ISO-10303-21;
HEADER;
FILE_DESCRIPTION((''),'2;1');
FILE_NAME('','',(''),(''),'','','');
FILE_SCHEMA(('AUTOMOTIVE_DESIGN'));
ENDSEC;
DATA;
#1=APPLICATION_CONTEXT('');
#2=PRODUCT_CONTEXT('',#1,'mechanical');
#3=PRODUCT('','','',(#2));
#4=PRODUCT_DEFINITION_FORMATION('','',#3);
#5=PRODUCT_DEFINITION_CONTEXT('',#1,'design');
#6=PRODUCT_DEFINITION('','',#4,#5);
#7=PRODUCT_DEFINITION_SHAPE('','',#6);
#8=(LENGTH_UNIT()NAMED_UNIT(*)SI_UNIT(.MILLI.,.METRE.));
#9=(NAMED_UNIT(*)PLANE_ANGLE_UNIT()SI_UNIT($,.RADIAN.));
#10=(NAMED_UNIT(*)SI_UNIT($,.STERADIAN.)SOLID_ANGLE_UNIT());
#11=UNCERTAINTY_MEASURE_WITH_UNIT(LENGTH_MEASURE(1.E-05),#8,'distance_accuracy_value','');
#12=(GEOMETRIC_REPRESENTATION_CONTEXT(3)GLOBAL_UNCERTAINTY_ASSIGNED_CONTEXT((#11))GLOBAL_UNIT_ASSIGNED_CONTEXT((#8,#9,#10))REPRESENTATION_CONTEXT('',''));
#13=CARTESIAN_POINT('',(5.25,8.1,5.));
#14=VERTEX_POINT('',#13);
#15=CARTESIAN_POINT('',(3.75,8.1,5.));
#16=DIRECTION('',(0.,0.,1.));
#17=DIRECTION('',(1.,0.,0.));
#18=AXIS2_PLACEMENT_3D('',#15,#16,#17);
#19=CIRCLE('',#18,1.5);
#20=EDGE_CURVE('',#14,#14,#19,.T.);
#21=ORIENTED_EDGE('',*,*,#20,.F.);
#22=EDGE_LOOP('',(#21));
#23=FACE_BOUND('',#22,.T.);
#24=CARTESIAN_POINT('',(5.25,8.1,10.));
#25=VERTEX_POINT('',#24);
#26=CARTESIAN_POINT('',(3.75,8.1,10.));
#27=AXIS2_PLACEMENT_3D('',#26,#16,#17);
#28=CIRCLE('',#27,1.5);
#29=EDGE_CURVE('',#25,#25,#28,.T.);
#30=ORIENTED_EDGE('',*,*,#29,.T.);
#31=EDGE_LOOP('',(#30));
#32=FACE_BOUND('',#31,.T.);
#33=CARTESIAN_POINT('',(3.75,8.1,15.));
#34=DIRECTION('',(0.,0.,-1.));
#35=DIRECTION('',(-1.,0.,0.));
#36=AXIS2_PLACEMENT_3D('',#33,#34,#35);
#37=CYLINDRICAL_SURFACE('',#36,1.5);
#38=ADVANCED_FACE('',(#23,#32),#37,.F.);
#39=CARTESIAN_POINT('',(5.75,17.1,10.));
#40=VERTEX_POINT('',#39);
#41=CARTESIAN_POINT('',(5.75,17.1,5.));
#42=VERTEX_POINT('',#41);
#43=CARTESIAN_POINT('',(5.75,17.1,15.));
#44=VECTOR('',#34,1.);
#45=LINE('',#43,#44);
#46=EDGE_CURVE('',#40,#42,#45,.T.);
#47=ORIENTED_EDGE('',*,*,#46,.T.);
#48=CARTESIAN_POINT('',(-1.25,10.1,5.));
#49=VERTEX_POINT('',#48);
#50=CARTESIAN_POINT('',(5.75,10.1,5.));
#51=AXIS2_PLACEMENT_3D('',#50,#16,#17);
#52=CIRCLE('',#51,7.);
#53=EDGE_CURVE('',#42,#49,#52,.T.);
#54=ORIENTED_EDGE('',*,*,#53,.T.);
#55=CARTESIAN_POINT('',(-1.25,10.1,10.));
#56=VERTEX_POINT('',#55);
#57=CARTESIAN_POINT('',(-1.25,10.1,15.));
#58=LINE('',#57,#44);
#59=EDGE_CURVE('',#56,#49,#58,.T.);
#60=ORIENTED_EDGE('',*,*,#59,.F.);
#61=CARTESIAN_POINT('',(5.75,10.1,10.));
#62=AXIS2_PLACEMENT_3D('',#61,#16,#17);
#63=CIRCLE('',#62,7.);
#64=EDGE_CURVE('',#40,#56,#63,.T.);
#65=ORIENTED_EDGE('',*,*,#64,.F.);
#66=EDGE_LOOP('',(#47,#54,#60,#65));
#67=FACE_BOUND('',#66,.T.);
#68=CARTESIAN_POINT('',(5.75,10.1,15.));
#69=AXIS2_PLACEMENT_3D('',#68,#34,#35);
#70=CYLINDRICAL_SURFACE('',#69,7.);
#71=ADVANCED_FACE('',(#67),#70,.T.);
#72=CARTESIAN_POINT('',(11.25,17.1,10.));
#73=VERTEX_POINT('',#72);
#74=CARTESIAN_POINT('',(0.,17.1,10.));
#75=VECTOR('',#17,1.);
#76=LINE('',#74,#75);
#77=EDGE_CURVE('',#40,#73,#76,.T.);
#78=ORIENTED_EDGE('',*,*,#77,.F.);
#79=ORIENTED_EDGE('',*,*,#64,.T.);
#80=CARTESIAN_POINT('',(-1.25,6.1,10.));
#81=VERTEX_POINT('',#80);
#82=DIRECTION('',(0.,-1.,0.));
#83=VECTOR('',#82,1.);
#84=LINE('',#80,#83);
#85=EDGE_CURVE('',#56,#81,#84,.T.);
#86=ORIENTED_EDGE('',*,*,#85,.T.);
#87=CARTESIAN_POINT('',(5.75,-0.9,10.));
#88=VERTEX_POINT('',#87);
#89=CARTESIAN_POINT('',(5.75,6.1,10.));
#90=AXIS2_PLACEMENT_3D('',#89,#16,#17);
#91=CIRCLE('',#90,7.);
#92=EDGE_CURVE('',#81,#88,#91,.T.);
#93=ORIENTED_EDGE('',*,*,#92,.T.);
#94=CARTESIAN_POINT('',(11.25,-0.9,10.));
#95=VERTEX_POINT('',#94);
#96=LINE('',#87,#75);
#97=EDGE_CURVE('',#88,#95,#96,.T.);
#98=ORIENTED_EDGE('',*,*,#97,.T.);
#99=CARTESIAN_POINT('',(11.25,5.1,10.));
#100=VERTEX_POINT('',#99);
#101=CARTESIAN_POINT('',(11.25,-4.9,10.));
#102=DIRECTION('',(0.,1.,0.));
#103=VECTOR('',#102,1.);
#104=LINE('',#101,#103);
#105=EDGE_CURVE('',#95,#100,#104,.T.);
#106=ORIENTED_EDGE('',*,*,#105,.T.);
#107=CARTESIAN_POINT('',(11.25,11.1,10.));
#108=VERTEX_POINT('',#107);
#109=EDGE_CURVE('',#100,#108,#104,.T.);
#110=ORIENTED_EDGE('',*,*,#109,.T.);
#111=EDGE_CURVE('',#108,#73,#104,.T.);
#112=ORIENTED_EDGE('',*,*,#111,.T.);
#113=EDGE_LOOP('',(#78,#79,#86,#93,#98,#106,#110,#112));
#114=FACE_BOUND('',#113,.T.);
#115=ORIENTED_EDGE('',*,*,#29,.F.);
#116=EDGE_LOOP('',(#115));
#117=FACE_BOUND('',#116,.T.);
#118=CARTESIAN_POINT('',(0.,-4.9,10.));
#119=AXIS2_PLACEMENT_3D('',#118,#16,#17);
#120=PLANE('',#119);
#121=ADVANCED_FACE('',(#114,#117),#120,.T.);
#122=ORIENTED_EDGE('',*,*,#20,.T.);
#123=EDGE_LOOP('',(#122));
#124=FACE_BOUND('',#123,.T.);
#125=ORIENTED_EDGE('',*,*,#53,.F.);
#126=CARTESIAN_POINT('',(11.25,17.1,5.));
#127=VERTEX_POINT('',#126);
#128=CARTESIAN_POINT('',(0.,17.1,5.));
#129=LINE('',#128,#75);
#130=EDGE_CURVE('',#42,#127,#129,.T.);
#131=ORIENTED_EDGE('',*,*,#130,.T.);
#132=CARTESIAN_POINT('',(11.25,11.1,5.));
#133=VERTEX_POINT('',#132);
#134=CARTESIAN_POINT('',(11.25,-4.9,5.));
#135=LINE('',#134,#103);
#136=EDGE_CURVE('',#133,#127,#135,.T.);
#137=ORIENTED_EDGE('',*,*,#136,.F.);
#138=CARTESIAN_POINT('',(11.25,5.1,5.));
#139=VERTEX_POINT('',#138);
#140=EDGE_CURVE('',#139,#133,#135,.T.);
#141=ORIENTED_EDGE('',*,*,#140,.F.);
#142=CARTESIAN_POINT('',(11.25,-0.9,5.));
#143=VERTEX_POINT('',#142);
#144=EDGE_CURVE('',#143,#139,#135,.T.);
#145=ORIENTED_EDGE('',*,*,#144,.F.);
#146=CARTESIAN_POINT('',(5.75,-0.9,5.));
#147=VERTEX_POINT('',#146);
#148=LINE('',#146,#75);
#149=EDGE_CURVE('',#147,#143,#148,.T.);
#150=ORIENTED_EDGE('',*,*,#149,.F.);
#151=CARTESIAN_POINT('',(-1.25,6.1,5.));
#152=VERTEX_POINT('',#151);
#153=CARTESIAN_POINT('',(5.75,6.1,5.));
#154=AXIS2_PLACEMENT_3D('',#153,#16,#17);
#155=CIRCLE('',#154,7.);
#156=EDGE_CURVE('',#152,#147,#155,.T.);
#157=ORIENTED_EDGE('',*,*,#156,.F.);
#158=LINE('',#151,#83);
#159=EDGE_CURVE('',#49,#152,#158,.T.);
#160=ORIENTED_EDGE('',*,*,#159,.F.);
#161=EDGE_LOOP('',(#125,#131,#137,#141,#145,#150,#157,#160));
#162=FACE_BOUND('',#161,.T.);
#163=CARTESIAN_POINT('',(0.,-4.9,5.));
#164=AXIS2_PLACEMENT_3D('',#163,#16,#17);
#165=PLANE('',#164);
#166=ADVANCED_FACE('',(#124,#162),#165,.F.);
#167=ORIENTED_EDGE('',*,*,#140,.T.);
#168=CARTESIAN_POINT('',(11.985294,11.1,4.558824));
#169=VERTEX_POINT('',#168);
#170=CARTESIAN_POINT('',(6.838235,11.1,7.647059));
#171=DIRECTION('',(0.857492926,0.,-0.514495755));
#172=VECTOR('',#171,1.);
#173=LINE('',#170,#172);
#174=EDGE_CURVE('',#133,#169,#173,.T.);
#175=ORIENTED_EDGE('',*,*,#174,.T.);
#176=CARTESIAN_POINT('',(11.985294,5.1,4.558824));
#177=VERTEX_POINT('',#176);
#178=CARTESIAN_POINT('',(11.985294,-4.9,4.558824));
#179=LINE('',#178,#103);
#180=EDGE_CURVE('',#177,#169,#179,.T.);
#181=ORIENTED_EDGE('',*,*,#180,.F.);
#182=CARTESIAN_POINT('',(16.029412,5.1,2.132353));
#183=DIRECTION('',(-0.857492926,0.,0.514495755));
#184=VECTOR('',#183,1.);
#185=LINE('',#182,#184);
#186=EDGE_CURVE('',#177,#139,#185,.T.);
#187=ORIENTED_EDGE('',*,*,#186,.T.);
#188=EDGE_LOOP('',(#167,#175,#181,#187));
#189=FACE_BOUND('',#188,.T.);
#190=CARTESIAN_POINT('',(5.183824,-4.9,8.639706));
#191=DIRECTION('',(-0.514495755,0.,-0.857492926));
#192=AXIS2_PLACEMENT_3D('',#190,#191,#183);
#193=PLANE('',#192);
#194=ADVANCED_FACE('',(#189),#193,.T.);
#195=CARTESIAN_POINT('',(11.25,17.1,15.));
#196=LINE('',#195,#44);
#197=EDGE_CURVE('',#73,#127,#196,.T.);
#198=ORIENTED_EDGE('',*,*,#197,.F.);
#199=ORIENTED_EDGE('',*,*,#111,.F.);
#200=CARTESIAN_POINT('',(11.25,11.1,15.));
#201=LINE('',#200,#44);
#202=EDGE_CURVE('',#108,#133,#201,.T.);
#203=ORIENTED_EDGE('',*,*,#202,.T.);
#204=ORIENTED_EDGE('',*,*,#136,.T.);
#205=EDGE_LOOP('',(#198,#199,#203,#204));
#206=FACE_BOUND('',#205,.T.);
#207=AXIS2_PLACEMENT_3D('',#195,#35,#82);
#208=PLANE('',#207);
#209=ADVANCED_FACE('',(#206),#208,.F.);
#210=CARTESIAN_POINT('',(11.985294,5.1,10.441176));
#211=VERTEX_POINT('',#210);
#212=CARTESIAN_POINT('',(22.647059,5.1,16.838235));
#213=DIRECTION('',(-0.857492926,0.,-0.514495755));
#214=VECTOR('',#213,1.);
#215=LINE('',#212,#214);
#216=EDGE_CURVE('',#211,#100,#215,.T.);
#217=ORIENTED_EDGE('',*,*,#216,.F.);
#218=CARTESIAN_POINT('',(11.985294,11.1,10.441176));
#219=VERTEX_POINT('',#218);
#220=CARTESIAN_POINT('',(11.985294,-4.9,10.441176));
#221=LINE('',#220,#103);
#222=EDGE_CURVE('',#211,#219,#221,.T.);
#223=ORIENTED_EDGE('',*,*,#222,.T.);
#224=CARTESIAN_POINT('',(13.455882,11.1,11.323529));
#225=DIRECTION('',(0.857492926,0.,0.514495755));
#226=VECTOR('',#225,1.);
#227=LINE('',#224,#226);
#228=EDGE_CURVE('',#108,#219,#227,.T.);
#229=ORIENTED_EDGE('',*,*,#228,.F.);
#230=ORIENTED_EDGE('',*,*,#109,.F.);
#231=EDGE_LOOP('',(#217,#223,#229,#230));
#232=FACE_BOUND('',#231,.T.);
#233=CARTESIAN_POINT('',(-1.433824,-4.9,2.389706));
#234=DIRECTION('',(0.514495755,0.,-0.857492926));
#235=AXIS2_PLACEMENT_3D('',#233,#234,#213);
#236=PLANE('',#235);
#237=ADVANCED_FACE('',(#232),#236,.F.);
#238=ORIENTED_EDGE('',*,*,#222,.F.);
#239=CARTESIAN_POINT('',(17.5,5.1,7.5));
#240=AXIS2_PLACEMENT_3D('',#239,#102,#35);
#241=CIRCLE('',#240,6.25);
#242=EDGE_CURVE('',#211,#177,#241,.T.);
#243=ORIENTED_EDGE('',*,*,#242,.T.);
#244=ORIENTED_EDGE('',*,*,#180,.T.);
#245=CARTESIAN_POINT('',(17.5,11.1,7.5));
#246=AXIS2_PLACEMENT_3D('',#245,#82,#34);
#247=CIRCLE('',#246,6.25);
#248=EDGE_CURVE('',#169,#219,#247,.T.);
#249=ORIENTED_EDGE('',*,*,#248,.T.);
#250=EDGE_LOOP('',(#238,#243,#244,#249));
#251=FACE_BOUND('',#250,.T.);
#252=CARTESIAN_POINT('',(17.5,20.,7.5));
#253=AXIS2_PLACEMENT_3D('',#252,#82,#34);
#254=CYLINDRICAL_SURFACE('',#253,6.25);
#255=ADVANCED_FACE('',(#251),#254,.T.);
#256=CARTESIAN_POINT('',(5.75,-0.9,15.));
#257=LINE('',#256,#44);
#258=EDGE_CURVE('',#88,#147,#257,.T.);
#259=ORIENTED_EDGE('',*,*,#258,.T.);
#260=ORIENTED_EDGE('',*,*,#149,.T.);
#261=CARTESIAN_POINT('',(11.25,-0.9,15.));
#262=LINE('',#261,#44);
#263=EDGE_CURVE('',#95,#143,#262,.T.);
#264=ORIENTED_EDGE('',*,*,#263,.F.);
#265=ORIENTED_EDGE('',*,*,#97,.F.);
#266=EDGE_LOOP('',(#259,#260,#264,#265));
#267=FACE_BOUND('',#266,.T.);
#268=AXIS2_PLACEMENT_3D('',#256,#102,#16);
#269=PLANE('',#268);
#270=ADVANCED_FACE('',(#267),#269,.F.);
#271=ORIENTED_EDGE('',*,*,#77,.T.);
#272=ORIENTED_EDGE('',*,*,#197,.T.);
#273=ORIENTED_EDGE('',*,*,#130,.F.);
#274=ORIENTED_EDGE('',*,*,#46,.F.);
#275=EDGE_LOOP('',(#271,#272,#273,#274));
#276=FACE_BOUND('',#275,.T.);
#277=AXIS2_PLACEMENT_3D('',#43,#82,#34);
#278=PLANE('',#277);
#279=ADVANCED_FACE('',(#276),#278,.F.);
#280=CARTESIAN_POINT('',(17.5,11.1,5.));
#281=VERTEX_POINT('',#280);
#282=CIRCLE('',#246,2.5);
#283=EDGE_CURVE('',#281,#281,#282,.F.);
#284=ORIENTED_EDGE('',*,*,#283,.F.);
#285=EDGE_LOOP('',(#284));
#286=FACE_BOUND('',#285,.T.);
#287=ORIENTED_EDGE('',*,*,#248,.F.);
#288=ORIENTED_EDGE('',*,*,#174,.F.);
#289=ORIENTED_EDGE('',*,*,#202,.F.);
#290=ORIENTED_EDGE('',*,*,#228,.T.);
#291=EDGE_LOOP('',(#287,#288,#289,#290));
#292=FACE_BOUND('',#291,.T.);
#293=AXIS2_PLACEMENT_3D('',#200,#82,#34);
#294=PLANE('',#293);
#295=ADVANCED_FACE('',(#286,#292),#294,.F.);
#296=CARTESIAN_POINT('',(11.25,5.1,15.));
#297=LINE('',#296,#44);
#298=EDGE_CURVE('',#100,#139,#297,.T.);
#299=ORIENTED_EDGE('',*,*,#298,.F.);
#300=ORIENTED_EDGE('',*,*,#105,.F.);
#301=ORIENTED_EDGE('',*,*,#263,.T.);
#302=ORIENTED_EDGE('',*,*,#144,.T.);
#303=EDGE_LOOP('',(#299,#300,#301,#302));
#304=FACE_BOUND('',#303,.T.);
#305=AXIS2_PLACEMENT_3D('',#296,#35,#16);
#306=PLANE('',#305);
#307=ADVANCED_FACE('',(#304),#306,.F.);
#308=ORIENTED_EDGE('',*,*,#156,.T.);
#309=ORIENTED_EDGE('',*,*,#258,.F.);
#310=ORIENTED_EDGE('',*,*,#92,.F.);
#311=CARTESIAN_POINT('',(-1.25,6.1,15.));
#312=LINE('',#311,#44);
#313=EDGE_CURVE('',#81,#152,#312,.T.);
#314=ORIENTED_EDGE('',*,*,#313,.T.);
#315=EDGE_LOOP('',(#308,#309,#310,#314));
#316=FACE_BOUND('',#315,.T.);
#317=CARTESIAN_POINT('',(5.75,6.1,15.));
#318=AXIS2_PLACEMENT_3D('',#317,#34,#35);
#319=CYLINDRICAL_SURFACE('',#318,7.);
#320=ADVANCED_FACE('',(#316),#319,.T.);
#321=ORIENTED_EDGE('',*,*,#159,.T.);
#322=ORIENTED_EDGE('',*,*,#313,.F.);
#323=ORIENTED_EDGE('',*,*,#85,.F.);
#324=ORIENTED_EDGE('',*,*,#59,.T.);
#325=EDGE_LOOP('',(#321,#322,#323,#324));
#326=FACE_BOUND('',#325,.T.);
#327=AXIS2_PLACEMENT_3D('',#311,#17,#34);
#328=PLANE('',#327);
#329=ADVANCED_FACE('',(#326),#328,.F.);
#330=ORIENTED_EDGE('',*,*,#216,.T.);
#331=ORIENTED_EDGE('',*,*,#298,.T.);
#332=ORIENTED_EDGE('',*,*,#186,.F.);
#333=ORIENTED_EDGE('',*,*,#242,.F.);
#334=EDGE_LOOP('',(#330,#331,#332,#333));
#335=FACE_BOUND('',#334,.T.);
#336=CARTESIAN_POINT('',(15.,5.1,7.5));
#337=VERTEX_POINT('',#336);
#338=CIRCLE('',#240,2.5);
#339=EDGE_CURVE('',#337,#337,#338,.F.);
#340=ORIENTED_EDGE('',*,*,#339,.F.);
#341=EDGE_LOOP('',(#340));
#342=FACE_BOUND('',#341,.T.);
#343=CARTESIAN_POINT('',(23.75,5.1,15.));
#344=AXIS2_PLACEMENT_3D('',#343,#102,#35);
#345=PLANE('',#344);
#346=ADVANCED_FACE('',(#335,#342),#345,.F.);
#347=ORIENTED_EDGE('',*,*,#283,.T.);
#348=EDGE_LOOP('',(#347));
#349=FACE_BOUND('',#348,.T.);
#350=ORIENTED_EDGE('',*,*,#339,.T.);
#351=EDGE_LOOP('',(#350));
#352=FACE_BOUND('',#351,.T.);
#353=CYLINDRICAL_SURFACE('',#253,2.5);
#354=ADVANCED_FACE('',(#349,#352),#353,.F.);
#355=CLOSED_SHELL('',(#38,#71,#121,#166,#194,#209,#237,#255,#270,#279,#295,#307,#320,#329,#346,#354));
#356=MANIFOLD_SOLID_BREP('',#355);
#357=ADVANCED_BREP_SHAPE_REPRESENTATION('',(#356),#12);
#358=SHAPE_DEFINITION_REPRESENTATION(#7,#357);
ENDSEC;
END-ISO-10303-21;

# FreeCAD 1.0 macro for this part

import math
import FreeCAD as App
import Part
import Sketcher

doc = App.newDocument("Part")
body = doc.addObject("PartDesign::Body", "Body")

sketch1 = body.newObject("Sketcher::SketchObject", "Sketch")
sketch1.AttachmentSupport = (doc.getObject("XY_Plane"), [""])
sketch1.MapMode = "FlatFace"
sketch1.addGeometry([
    Part.LineSegment(App.Vector(11.2, 11.1, 0), App.Vector(11.2, 17.1, 0)),
    Part.LineSegment(App.Vector(11.2, 17.1, 0), App.Vector(5.8, 17.1, 0)),
    Part.ArcOfCircle(Part.Circle(App.Vector(5.8, 10.1, 0), App.Vector(0, 0, 1), 7), math.radians(90), math.radians(180)),
    Part.LineSegment(App.Vector(-1.2, 10.1, 0), App.Vector(-1.2, 6.1, 0)),
    Part.ArcOfCircle(Part.Circle(App.Vector(5.8, 6.1, 0), App.Vector(0, 0, 1), 7), math.radians(-180), math.radians(-90)),
    Part.LineSegment(App.Vector(5.8, -0.9, 0), App.Vector(11.2, -0.9, 0)),
    Part.LineSegment(App.Vector(11.2, -0.9, 0), App.Vector(11.2, 5.1, 0)),
    Part.LineSegment(App.Vector(11.2, 5.1, 0), App.Vector(23.8, 5.1, 0)),
    Part.LineSegment(App.Vector(23.8, 5.1, 0), App.Vector(23.8, 11.1, 0)),
    Part.LineSegment(App.Vector(23.8, 11.1, 0), App.Vector(11.2, 11.1, 0)),
    Part.Circle(App.Vector(3.8, 8.1, 0), App.Vector(0, 0, 1), 1.5),
], False)
sketch1.addConstraint([
    Sketcher.Constraint("Coincident", 0, 2, 1, 1),
    Sketcher.Constraint("Tangent", 1, 2, 2, 1),
    Sketcher.Constraint("Tangent", 2, 2, 3, 1),
    Sketcher.Constraint("Tangent", 3, 2, 4, 1),
    Sketcher.Constraint("Tangent", 4, 2, 5, 1),
    Sketcher.Constraint("Coincident", 5, 2, 6, 1),
    Sketcher.Constraint("Coincident", 6, 2, 7, 1),
    Sketcher.Constraint("Coincident", 7, 2, 8, 1),
    Sketcher.Constraint("Coincident", 8, 2, 9, 1),
    Sketcher.Constraint("Coincident", 9, 2, 0, 1),
    Sketcher.Constraint("Vertical", 0),
    Sketcher.Constraint("Horizontal", 1),
    Sketcher.Constraint("Vertical", 3),
    Sketcher.Constraint("Horizontal", 5),
    Sketcher.Constraint("Vertical", 6),
    Sketcher.Constraint("Horizontal", 7),
    Sketcher.Constraint("Vertical", 8),
    Sketcher.Constraint("Horizontal", 9),
    Sketcher.Constraint("Equal", 2, 4),
    Sketcher.Constraint("Vertical", 0, 2, 5, 2),
    Sketcher.Constraint("Equal", 0, 6),
    Sketcher.Constraint("Equal", 6, 8),
    Sketcher.Constraint("Diameter", 10, 3.0),
    Sketcher.Constraint("Radius", 2, 7.0),
    Sketcher.Constraint("DistanceY", 0, 1, 0, 2, 6.0),
    Sketcher.Constraint("DistanceX", 1, 2, 1, 1, 5.5),
    Sketcher.Constraint("DistanceX", 7, 1, 7, 2, 12.5),
    Sketcher.Constraint("DistanceX", 10, 3, 2, 3, 2.0),
    Sketcher.Constraint("DistanceY", 10, 3, 2, 3, 2.0),
    Sketcher.Constraint("DistanceY", -1, 1, 2, 3, 10.1),
    Sketcher.Constraint("DistanceX", -1, 1, 2, 3, 5.75),
])
pad1 = body.newObject("PartDesign::Pad", "Pad")
pad1.Profile = sketch1
pad1.Length = 15

sketch2 = body.newObject("Sketcher::SketchObject", "Sketch001")
sketch2.AttachmentSupport = (doc.getObject("XZ_Plane"), [""])
sketch2.MapMode = "FlatFace"
sketch2.addGeometry([
    Part.Circle(App.Vector(17.5, 7.5, 0), App.Vector(0, 0, 1), 2.5),
    Part.LineSegment(App.Vector(11.2, 0, 0), App.Vector(17.5, 1.2, 0)),
    Part.ArcOfCircle(Part.Circle(App.Vector(17.5, 7.5, 0), App.Vector(0, 0, 1), 6.2), math.radians(-90), math.radians(90)),
    Part.LineSegment(App.Vector(17.5, 13.8, 0), App.Vector(11.2, 15, 0)),
    Part.LineSegment(App.Vector(11.2, 15, 0), App.Vector(11.2, 18, 0)),
    Part.LineSegment(App.Vector(11.2, 18, 0), App.Vector(29.7, 18, 0)),
    Part.LineSegment(App.Vector(29.7, 18, 0), App.Vector(29.7, -1.9, 0)),
    Part.LineSegment(App.Vector(29.7, -1.9, 0), App.Vector(11.1, -1.9, 0)),
    Part.LineSegment(App.Vector(11.1, -1.9, 0), App.Vector(11.2, 0, 0)),
], False)
sketch2.addConstraint([
    Sketcher.Constraint("Coincident", 1, 2, 2, 1),
    Sketcher.Constraint("Coincident", 2, 2, 3, 1),
    Sketcher.Constraint("Coincident", 3, 2, 4, 1),
    Sketcher.Constraint("Coincident", 4, 2, 5, 1),
    Sketcher.Constraint("Coincident", 5, 2, 6, 1),
    Sketcher.Constraint("Coincident", 6, 2, 7, 1),
    Sketcher.Constraint("Coincident", 7, 2, 8, 1),
    Sketcher.Constraint("Coincident", 8, 2, 1, 1),
    Sketcher.Constraint("Vertical", 4),
    Sketcher.Constraint("Horizontal", 5),
    Sketcher.Constraint("Vertical", 6),
    Sketcher.Constraint("Horizontal", 7),
    Sketcher.Constraint("Coincident", 2, 3, 0, 3),
    Sketcher.Constraint("PointOnObject", 8, 2, -1),
    Sketcher.Constraint("Vertical", 2, 3, 1, 2),
    Sketcher.Constraint("Vertical", 1, 2, 2, 2),
    Sketcher.Constraint("Vertical", 4, 2, 8, 2),
    Sketcher.Constraint("Equal", 1, 3),
    Sketcher.Constraint("Diameter", 0, 5.0),
    Sketcher.Constraint("Radius", 2, 6.25),
    Sketcher.Constraint("DistanceY", -1, 1, 3, 2, 15.0),
    Sketcher.Constraint("DistanceX", -1, 1, 0, 3, 17.5),
    Sketcher.Constraint("DistanceX", -1, 1, 3, 2, 11.25),
    Sketcher.Constraint("DistanceY", 4, 1, 4, 2, 2.96127),
    Sketcher.Constraint("DistanceX", 5, 1, 5, 2, 18.413454),
    Sketcher.Constraint("DistanceX", 7, 2, 7, 1, 18.537175),
    Sketcher.Constraint("DistanceY", 6, 2, 6, 1, 19.829873),
])
pocket1 = body.newObject("PartDesign::Pocket", "Pocket")
pocket1.Profile = sketch2
pocket1.Length = 20

sketch3 = body.newObject("Sketcher::SketchObject", "Sketch002")
sketch3.AttachmentSupport = (doc.getObject("XZ_Plane"), [""])
sketch3.MapMode = "FlatFace"
sketch3.AttachmentOffset = App.Placement(App.Vector(0, 0, 4.9), App.Rotation())
sketch3.addGeometry([
    Part.LineSegment(App.Vector(11.2, 10, 0), App.Vector(-4.1, 10, 0)),
    Part.LineSegment(App.Vector(-4.1, 10, 0), App.Vector(-4.1, 15.6, 0)),
    Part.LineSegment(App.Vector(-4.1, 15.6, 0), App.Vector(17.5, 15.6, 0)),
    Part.LineSegment(App.Vector(17.5, 15.6, 0), App.Vector(17.5, 13.8, 0)),
    Part.ArcOfCircle(Part.Circle(App.Vector(17.5, 7.5, 0), App.Vector(0, 0, 1), 6.2), math.radians(90), math.radians(152)),
    Part.LineSegment(App.Vector(12, 10.4, 0), App.Vector(11.2, 10, 0)),
    Part.LineSegment(App.Vector(-3.5, 5, 0), App.Vector(11.2, 5, 0)),
    Part.LineSegment(App.Vector(11.2, 5, 0), App.Vector(12, 4.6, 0)),
    Part.ArcOfCircle(Part.Circle(App.Vector(17.5, 7.5, 0), App.Vector(0, 0, 1), 6.2), math.radians(-152), math.radians(-90)),
    Part.LineSegment(App.Vector(17.5, 1.2, 0), App.Vector(17.5, -1.7, 0)),
    Part.LineSegment(App.Vector(17.5, -1.7, 0), App.Vector(-3.5, -1.7, 0)),
    Part.LineSegment(App.Vector(-3.5, -1.7, 0), App.Vector(-3.5, 5, 0)),
], False)
sketch3.addConstraint([
    Sketcher.Constraint("Coincident", 0, 2, 1, 1),
    Sketcher.Constraint("Coincident", 1, 2, 2, 1),
    Sketcher.Constraint("Coincident", 2, 2, 3, 1),
    Sketcher.Constraint("Coincident", 3, 2, 4, 1),
    Sketcher.Constraint("Coincident", 4, 2, 5, 1),
    Sketcher.Constraint("Coincident", 5, 2, 0, 1),
    Sketcher.Constraint("Coincident", 6, 2, 7, 1),
    Sketcher.Constraint("Coincident", 7, 2, 8, 1),
    Sketcher.Constraint("Coincident", 8, 2, 9, 1),
    Sketcher.Constraint("Coincident", 9, 2, 10, 1),
    Sketcher.Constraint("Coincident", 10, 2, 11, 1),
    Sketcher.Constraint("Coincident", 11, 2, 6, 1),
    Sketcher.Constraint("Horizontal", 0),
    Sketcher.Constraint("Vertical", 1),
    Sketcher.Constraint("Horizontal", 2),
    Sketcher.Constraint("Vertical", 3),
    Sketcher.Constraint("Horizontal", 6),
    Sketcher.Constraint("Vertical", 9),
    Sketcher.Constraint("Horizontal", 10),
    Sketcher.Constraint("Vertical", 11),
    Sketcher.Constraint("Coincident", 8, 3, 4, 3),
    Sketcher.Constraint("Equal", 4, 8),
    Sketcher.Constraint("Vertical", 8, 3, 2, 2),
    Sketcher.Constraint("Vertical", 5, 2, 6, 2),
    Sketcher.Constraint("Vertical", 4, 2, 7, 2),
    Sketcher.Constraint("Vertical", 3, 2, 8, 2),
    Sketcher.Constraint("Equal", 5, 7),
    Sketcher.Constraint("Radius", 4, 6.25),
    Sketcher.Constraint("DistanceY", -1, 1, 0, 2, 10.0),
    Sketcher.Constraint("DistanceY", -1, 1, 6, 2, 5.0),
    Sketcher.Constraint("DistanceX", -1, 1, 4, 3, 17.5),
    Sketcher.Constraint("DistanceX", -1, 1, 5, 2, 11.25),
    Sketcher.Constraint("DistanceY", 9, 2, 7, 2, 6.236001),
    Sketcher.Constraint("DistanceX", 0, 2, 0, 1, 15.380089),
    Sketcher.Constraint("DistanceX", 6, 1, 6, 2, 14.714792),
    Sketcher.Constraint("DistanceY", 1, 1, 1, 2, 5.581395),
    Sketcher.Constraint("DistanceY", 9, 2, 9, 1, 2.927178),
])
pocket2 = body.newObject("PartDesign::Pocket", "Pocket001")
pocket2.Profile = sketch3
pocket2.Length = 22

doc.recompute()
